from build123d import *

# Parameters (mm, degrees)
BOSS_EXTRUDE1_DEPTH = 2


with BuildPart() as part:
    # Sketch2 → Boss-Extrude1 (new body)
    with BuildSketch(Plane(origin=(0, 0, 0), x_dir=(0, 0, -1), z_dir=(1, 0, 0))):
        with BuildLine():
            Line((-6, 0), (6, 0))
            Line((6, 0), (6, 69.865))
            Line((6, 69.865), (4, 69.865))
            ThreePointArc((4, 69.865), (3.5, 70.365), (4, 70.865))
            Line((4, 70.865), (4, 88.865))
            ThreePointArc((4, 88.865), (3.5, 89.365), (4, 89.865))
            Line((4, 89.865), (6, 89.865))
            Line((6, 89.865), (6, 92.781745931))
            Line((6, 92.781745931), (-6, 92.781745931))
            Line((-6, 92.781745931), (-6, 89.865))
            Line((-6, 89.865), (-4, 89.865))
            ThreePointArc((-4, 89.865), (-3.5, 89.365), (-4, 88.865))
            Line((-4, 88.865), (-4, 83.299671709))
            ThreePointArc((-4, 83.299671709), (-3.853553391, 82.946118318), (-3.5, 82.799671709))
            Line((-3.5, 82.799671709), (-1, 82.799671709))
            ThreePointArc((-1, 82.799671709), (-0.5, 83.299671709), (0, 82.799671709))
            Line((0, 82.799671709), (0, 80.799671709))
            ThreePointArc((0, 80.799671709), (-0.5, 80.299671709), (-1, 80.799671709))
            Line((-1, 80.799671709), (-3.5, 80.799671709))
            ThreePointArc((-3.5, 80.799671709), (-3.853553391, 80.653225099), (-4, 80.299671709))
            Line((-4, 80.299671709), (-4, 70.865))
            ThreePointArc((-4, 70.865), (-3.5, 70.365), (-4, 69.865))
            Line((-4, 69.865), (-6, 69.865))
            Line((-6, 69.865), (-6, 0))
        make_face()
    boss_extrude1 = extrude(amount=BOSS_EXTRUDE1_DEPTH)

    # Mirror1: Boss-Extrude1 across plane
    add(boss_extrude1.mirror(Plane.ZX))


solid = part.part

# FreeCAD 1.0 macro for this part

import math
import FreeCAD as App
import Part
import Sketcher

V = App.Vector

doc = App.newDocument("Part")
body = doc.addObject("PartDesign::Body", "Body")

sketch1 = body.newObject("Sketcher::SketchObject", "Sketch")
sketch1.AttachmentSupport = (doc.getObject("YZ_Plane"), [""])
sketch1.MapMode = "FlatFace"
sketch1.addGeometry(Part.LineSegment(V(0, 6, 0), V(0, -6, 0)), False)
sketch1.addGeometry(Part.LineSegment(V(0, -6, 0), V(69.86, -6, 0)), False)
sketch1.addGeometry(Part.LineSegment(V(69.86, -6, 0), V(69.86, -4, 0)), False)
sketch1.addGeometry(Part.ArcOfCircle(Part.Circle(V(70.36, -4, 0), V(0, 0, 1), 0.5), math.radians(0), math.radians(180)), False)
sketch1.addGeometry(Part.LineSegment(V(70.86, -4, 0), V(88.86, -4, 0)), False)
sketch1.addGeometry(Part.ArcOfCircle(Part.Circle(V(89.36, -4, 0), V(0, 0, 1), 0.5), math.radians(0), math.radians(180)), False)
sketch1.addGeometry(Part.LineSegment(V(89.86, -4, 0), V(89.86, -6, 0)), False)
sketch1.addGeometry(Part.LineSegment(V(89.86, -6, 0), V(92.78, -6, 0)), False)
sketch1.addGeometry(Part.LineSegment(V(92.78, -6, 0), V(92.78, 6, 0)), False)
sketch1.addGeometry(Part.LineSegment(V(92.78, 6, 0), V(89.86, 6, 0)), False)
sketch1.addGeometry(Part.LineSegment(V(89.86, 6, 0), V(89.86, 4, 0)), False)
sketch1.addGeometry(Part.ArcOfCircle(Part.Circle(V(89.36, 4, 0), V(0, 0, 1), 0.5), math.radians(180), math.radians(360)), False)
sketch1.addGeometry(Part.LineSegment(V(88.86, 4, 0), V(83.3, 4, 0)), False)
sketch1.addGeometry(Part.ArcOfCircle(Part.Circle(V(83.3, 3.5, 0), V(0, 0, 1), 0.5), math.radians(90), math.radians(180)), False)
sketch1.addGeometry(Part.LineSegment(V(82.8, 3.5, 0), V(82.8, 1, 0)), False)
sketch1.addGeometry(Part.ArcOfCircle(Part.Circle(V(82.8, 0.5, 0), V(0, 0, 1), 0.5), math.radians(-90), math.radians(90)), False)
sketch1.addGeometry(Part.LineSegment(V(82.8, 0, 0), V(80.8, 0, 0)), False)
sketch1.addGeometry(Part.ArcOfCircle(Part.Circle(V(80.8, 0.5, 0), V(0, 0, 1), 0.5), math.radians(90), math.radians(270)), False)
sketch1.addGeometry(Part.LineSegment(V(80.8, 1, 0), V(80.8, 3.5, 0)), False)
sketch1.addGeometry(Part.ArcOfCircle(Part.Circle(V(80.3, 3.5, 0), V(0, 0, 1), 0.5), math.radians(0), math.radians(90)), False)
sketch1.addGeometry(Part.LineSegment(V(80.3, 4, 0), V(70.86, 4, 0)), False)
sketch1.addGeometry(Part.ArcOfCircle(Part.Circle(V(70.36, 4, 0), V(0, 0, 1), 0.5), math.radians(180), math.radians(360)), False)
sketch1.addGeometry(Part.LineSegment(V(69.86, 4, 0), V(69.86, 6, 0)), False)
sketch1.addGeometry(Part.LineSegment(V(69.86, 6, 0), V(0, 6, 0)), False)
sketch1.addConstraint(Sketcher.Constraint("Coincident", 0, 2, 1, 1))
sketch1.addConstraint(Sketcher.Constraint("Coincident", 1, 2, 2, 1))
sketch1.addConstraint(Sketcher.Constraint("Tangent", 2, 2, 3, 2))
sketch1.addConstraint(Sketcher.Constraint("Coincident", 3, 1, 4, 1))
sketch1.addConstraint(Sketcher.Constraint("Coincident", 4, 2, 5, 2))
sketch1.addConstraint(Sketcher.Constraint("Tangent", 5, 1, 6, 1))
sketch1.addConstraint(Sketcher.Constraint("Coincident", 6, 2, 7, 1))
sketch1.addConstraint(Sketcher.Constraint("Coincident", 7, 2, 8, 1))
sketch1.addConstraint(Sketcher.Constraint("Coincident", 8, 2, 9, 1))
sketch1.addConstraint(Sketcher.Constraint("Coincident", 9, 2, 10, 1))
sketch1.addConstraint(Sketcher.Constraint("Tangent", 10, 2, 11, 2))
sketch1.addConstraint(Sketcher.Constraint("Coincident", 11, 1, 12, 1))
sketch1.addConstraint(Sketcher.Constraint("Tangent", 12, 2, 13, 1))
sketch1.addConstraint(Sketcher.Constraint("Tangent", 13, 2, 14, 1))
sketch1.addConstraint(Sketcher.Constraint("Coincident", 14, 2, 15, 2))
sketch1.addConstraint(Sketcher.Constraint("Tangent", 15, 1, 16, 1))
sketch1.addConstraint(Sketcher.Constraint("Tangent", 16, 2, 17, 2))
sketch1.addConstraint(Sketcher.Constraint("Coincident", 17, 1, 18, 1))
sketch1.addConstraint(Sketcher.Constraint("Tangent", 18, 2, 19, 1))
sketch1.addConstraint(Sketcher.Constraint("Tangent", 19, 2, 20, 1))
sketch1.addConstraint(Sketcher.Constraint("Coincident", 20, 2, 21, 2))
sketch1.addConstraint(Sketcher.Constraint("Tangent", 21, 1, 22, 1))
sketch1.addConstraint(Sketcher.Constraint("Coincident", 22, 2, 23, 1))
sketch1.addConstraint(Sketcher.Constraint("Coincident", 23, 2, 0, 1))
sketch1.addConstraint(Sketcher.Constraint("Vertical", 0))
sketch1.addConstraint(Sketcher.Constraint("Horizontal", 1))
sketch1.addConstraint(Sketcher.Constraint("Vertical", 2))
sketch1.addConstraint(Sketcher.Constraint("Horizontal", 4))
sketch1.addConstraint(Sketcher.Constraint("Vertical", 6))
sketch1.addConstraint(Sketcher.Constraint("Horizontal", 7))
sketch1.addConstraint(Sketcher.Constraint("Vertical", 8))
sketch1.addConstraint(Sketcher.Constraint("Horizontal", 9))
sketch1.addConstraint(Sketcher.Constraint("Vertical", 10))
sketch1.addConstraint(Sketcher.Constraint("Horizontal", 12))
sketch1.addConstraint(Sketcher.Constraint("Vertical", 14))
sketch1.addConstraint(Sketcher.Constraint("Horizontal", 16))
sketch1.addConstraint(Sketcher.Constraint("Vertical", 18))
sketch1.addConstraint(Sketcher.Constraint("Horizontal", 20))
sketch1.addConstraint(Sketcher.Constraint("Vertical", 22))
sketch1.addConstraint(Sketcher.Constraint("Horizontal", 23))
sketch1.addConstraint(Sketcher.Constraint("Equal", 3, 5))
sketch1.addConstraint(Sketcher.Constraint("Equal", 5, 11))
sketch1.addConstraint(Sketcher.Constraint("Equal", 11, 13))
sketch1.addConstraint(Sketcher.Constraint("Equal", 13, 15))
sketch1.addConstraint(Sketcher.Constraint("Equal", 15, 17))
sketch1.addConstraint(Sketcher.Constraint("Equal", 17, 19))
sketch1.addConstraint(Sketcher.Constraint("Equal", 19, 21))
sketch1.addConstraint(Sketcher.Constraint("Symmetric", 0, 2, 23, 2, -1, 1))
sketch1.addConstraint(Sketcher.Constraint("Symmetric", 5, 3, 11, 3, -1))
sketch1.addConstraint(Sketcher.Constraint("Symmetric", 3, 3, 21, 3, -1))
sketch1.addConstraint(Sketcher.Constraint("PointOnObject", 15, 1, -1))
sketch1.addConstraint(Sketcher.Constraint("Horizontal", 3, 3, 5, 3))
sketch1.addConstraint(Sketcher.Constraint("Horizontal", 13, 3, 19, 3))
sketch1.addConstraint(Sketcher.Constraint("Horizontal", 2, 2, 3, 1))
sketch1.addConstraint(Sketcher.Constraint("Horizontal", 1, 2, 6, 2))
sketch1.addConstraint(Sketcher.Constraint("Horizontal", 10, 2, 11, 1))
sketch1.addConstraint(Sketcher.Constraint("Horizontal", 9, 2, 22, 2))
sketch1.addConstraint(Sketcher.Constraint("Vertical", 15, 3, 13, 2))
sketch1.addConstraint(Sketcher.Constraint("Vertical", 16, 2, 17, 1))
sketch1.addConstraint(Sketcher.Constraint("Equal", 16, 2))
sketch1.addConstraint(Sketcher.Constraint("Radius", 3, 0.5))
sketch1.addConstraint(Sketcher.Constraint("DistanceX", 4, 1, 4, 2, 18.0))
sketch1.addConstraint(Sketcher.Constraint("DistanceX", 16, 2, 16, 1, 2.0))
sketch1.addConstraint(Sketcher.Constraint("DistanceY", 0, 2, 0, 1, 12.0))
sketch1.addConstraint(Sketcher.Constraint("DistanceX", 1, 1, 1, 2, 69.865))
sketch1.addConstraint(Sketcher.Constraint("DistanceX", 12, 2, 12, 1, 5.565328))
sketch1.addConstraint(Sketcher.Constraint("DistanceX", 7, 1, 7, 2, 2.916746))
pad1 = body.newObject("PartDesign::Pad", "Pad")
pad1.Profile = sketch1
pad1.Length = 2
doc.recompute()

mirrored = body.newObject("PartDesign::Mirrored", "Mirrored")
mirrored.Originals = [pad1]
mirrored.MirrorPlane = (doc.getObject("XZ_Plane"), [""])
body.Tip = mirrored

doc.recompute()
